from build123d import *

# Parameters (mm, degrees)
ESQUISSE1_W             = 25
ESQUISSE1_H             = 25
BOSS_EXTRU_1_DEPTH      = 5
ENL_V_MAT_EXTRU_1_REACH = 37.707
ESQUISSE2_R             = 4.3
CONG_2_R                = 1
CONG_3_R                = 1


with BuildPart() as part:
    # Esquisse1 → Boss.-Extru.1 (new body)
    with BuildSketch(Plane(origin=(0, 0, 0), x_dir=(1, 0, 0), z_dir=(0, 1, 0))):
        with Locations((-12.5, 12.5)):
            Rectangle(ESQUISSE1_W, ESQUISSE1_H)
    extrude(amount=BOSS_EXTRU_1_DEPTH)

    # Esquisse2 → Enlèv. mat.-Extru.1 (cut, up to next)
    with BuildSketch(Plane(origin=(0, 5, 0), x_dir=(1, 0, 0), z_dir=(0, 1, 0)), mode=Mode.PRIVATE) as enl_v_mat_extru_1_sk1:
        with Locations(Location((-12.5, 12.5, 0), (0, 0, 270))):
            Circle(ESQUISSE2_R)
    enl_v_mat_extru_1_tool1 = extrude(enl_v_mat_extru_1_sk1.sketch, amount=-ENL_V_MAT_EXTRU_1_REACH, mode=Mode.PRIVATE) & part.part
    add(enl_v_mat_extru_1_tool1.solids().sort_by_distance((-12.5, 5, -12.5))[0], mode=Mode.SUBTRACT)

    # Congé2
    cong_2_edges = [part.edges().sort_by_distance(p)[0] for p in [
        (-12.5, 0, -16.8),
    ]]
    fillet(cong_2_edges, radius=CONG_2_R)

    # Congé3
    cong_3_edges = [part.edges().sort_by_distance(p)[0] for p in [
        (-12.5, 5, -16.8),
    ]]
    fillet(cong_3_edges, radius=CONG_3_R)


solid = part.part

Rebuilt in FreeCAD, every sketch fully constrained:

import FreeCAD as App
import Part
import Sketcher
from FreeCAD import Vector


def edges_at(feature, points):
    """Names of the edges that pass closest to the given points."""
    edges = feature.Shape.Edges
    near = lambda p: min(range(len(edges)), key=lambda i: edges[i].distToShape(Part.Vertex(*p))[0])
    return sorted({f"Edge{near(p) + 1}" for p in points})


def add_polygon(sketch, points):
    """Adds a closed chain of lines whose ends are joined by coincident constraints."""
    first, n = sketch.GeometryCount, len(points)
    for a, b in zip(points, points[1:] + points[:1]):
        sketch.addGeometry(Part.LineSegment(App.Vector(*a, 0), App.Vector(*b, 0)), False)
    for i in range(n):
        sketch.addConstraint(Sketcher.Constraint("Coincident", first + i, 2, first + (i + 1) % n, 1))

doc = App.newDocument("Part")
body = doc.addObject("PartDesign::Body", "Body")

# Sketch on XZ plane
sketch1 = doc.addObject("Sketcher::SketchObject", "Sketch")
body.addObject(sketch1)
sketch1.AttachmentSupport = (doc.XZ_Plane, [""])
sketch1.MapMode = "FlatFace"
add_polygon(sketch1, [(-25, -25), (-25, 0), (0, 0), (0, -25)])  # lines 0-3
sketch1.addConstraint(Sketcher.Constraint("Vertical", 0))
sketch1.addConstraint(Sketcher.Constraint("Horizontal", 1))
sketch1.addConstraint(Sketcher.Constraint("Vertical", 2))
sketch1.addConstraint(Sketcher.Constraint("Horizontal", 3))
sketch1.addConstraint(Sketcher.Constraint("Coincident", 1, 2, -1, 1))
sketch1.addConstraint(Sketcher.Constraint("Equal", 3, 0))
sketch1.addConstraint(Sketcher.Constraint("DistanceX", 1, 1, 1, 2, 25.0))
pad1 = doc.addObject("PartDesign::Pad", "Pad")
body.addObject(pad1)
pad1.Profile = sketch1
pad1.Length = 5
pad1.Reversed = True

# Sketch on XZ plane
sketch2 = doc.addObject("Sketcher::SketchObject", "Sketch001")
body.addObject(sketch2)
sketch2.AttachmentSupport = (doc.XZ_Plane, [""])
sketch2.MapMode = "FlatFace"
sketch2.AttachmentOffset = App.Placement(Vector(0, 0, -5), App.Rotation())
sketch2.addGeometry(Part.Circle(Vector(-12.5, -12.5, 0), Vector(0, 0, 1), 4.3), False)
sketch2.addConstraint(Sketcher.Constraint("Diameter", 0, 8.6))
sketch2.addConstraint(Sketcher.Constraint("DistanceX", 0, 3, -1, 1, 12.5))
sketch2.addConstraint(Sketcher.Constraint("DistanceY", 0, 3, -1, 1, 12.5))
pocket1 = doc.addObject("PartDesign::Pocket", "Pocket")
body.addObject(pocket1)
pocket1.Profile = sketch2
pocket1.Type = "UpToFirst"
pocket1.Reversed = True
doc.recompute()

fillet = doc.addObject("PartDesign::Fillet", "Fillet")
body.addObject(fillet)
fillet.Base = (pocket1, edges_at(pocket1, [(-12.5, 0, -16.8)]))
fillet.Radius = 1
doc.recompute()

fillet2 = doc.addObject("PartDesign::Fillet", "Fillet001")
body.addObject(fillet2)
fillet2.Base = (fillet, edges_at(fillet, [(-12.5, 5, -16.8)]))
fillet2.Radius = 1

doc.recompute()
